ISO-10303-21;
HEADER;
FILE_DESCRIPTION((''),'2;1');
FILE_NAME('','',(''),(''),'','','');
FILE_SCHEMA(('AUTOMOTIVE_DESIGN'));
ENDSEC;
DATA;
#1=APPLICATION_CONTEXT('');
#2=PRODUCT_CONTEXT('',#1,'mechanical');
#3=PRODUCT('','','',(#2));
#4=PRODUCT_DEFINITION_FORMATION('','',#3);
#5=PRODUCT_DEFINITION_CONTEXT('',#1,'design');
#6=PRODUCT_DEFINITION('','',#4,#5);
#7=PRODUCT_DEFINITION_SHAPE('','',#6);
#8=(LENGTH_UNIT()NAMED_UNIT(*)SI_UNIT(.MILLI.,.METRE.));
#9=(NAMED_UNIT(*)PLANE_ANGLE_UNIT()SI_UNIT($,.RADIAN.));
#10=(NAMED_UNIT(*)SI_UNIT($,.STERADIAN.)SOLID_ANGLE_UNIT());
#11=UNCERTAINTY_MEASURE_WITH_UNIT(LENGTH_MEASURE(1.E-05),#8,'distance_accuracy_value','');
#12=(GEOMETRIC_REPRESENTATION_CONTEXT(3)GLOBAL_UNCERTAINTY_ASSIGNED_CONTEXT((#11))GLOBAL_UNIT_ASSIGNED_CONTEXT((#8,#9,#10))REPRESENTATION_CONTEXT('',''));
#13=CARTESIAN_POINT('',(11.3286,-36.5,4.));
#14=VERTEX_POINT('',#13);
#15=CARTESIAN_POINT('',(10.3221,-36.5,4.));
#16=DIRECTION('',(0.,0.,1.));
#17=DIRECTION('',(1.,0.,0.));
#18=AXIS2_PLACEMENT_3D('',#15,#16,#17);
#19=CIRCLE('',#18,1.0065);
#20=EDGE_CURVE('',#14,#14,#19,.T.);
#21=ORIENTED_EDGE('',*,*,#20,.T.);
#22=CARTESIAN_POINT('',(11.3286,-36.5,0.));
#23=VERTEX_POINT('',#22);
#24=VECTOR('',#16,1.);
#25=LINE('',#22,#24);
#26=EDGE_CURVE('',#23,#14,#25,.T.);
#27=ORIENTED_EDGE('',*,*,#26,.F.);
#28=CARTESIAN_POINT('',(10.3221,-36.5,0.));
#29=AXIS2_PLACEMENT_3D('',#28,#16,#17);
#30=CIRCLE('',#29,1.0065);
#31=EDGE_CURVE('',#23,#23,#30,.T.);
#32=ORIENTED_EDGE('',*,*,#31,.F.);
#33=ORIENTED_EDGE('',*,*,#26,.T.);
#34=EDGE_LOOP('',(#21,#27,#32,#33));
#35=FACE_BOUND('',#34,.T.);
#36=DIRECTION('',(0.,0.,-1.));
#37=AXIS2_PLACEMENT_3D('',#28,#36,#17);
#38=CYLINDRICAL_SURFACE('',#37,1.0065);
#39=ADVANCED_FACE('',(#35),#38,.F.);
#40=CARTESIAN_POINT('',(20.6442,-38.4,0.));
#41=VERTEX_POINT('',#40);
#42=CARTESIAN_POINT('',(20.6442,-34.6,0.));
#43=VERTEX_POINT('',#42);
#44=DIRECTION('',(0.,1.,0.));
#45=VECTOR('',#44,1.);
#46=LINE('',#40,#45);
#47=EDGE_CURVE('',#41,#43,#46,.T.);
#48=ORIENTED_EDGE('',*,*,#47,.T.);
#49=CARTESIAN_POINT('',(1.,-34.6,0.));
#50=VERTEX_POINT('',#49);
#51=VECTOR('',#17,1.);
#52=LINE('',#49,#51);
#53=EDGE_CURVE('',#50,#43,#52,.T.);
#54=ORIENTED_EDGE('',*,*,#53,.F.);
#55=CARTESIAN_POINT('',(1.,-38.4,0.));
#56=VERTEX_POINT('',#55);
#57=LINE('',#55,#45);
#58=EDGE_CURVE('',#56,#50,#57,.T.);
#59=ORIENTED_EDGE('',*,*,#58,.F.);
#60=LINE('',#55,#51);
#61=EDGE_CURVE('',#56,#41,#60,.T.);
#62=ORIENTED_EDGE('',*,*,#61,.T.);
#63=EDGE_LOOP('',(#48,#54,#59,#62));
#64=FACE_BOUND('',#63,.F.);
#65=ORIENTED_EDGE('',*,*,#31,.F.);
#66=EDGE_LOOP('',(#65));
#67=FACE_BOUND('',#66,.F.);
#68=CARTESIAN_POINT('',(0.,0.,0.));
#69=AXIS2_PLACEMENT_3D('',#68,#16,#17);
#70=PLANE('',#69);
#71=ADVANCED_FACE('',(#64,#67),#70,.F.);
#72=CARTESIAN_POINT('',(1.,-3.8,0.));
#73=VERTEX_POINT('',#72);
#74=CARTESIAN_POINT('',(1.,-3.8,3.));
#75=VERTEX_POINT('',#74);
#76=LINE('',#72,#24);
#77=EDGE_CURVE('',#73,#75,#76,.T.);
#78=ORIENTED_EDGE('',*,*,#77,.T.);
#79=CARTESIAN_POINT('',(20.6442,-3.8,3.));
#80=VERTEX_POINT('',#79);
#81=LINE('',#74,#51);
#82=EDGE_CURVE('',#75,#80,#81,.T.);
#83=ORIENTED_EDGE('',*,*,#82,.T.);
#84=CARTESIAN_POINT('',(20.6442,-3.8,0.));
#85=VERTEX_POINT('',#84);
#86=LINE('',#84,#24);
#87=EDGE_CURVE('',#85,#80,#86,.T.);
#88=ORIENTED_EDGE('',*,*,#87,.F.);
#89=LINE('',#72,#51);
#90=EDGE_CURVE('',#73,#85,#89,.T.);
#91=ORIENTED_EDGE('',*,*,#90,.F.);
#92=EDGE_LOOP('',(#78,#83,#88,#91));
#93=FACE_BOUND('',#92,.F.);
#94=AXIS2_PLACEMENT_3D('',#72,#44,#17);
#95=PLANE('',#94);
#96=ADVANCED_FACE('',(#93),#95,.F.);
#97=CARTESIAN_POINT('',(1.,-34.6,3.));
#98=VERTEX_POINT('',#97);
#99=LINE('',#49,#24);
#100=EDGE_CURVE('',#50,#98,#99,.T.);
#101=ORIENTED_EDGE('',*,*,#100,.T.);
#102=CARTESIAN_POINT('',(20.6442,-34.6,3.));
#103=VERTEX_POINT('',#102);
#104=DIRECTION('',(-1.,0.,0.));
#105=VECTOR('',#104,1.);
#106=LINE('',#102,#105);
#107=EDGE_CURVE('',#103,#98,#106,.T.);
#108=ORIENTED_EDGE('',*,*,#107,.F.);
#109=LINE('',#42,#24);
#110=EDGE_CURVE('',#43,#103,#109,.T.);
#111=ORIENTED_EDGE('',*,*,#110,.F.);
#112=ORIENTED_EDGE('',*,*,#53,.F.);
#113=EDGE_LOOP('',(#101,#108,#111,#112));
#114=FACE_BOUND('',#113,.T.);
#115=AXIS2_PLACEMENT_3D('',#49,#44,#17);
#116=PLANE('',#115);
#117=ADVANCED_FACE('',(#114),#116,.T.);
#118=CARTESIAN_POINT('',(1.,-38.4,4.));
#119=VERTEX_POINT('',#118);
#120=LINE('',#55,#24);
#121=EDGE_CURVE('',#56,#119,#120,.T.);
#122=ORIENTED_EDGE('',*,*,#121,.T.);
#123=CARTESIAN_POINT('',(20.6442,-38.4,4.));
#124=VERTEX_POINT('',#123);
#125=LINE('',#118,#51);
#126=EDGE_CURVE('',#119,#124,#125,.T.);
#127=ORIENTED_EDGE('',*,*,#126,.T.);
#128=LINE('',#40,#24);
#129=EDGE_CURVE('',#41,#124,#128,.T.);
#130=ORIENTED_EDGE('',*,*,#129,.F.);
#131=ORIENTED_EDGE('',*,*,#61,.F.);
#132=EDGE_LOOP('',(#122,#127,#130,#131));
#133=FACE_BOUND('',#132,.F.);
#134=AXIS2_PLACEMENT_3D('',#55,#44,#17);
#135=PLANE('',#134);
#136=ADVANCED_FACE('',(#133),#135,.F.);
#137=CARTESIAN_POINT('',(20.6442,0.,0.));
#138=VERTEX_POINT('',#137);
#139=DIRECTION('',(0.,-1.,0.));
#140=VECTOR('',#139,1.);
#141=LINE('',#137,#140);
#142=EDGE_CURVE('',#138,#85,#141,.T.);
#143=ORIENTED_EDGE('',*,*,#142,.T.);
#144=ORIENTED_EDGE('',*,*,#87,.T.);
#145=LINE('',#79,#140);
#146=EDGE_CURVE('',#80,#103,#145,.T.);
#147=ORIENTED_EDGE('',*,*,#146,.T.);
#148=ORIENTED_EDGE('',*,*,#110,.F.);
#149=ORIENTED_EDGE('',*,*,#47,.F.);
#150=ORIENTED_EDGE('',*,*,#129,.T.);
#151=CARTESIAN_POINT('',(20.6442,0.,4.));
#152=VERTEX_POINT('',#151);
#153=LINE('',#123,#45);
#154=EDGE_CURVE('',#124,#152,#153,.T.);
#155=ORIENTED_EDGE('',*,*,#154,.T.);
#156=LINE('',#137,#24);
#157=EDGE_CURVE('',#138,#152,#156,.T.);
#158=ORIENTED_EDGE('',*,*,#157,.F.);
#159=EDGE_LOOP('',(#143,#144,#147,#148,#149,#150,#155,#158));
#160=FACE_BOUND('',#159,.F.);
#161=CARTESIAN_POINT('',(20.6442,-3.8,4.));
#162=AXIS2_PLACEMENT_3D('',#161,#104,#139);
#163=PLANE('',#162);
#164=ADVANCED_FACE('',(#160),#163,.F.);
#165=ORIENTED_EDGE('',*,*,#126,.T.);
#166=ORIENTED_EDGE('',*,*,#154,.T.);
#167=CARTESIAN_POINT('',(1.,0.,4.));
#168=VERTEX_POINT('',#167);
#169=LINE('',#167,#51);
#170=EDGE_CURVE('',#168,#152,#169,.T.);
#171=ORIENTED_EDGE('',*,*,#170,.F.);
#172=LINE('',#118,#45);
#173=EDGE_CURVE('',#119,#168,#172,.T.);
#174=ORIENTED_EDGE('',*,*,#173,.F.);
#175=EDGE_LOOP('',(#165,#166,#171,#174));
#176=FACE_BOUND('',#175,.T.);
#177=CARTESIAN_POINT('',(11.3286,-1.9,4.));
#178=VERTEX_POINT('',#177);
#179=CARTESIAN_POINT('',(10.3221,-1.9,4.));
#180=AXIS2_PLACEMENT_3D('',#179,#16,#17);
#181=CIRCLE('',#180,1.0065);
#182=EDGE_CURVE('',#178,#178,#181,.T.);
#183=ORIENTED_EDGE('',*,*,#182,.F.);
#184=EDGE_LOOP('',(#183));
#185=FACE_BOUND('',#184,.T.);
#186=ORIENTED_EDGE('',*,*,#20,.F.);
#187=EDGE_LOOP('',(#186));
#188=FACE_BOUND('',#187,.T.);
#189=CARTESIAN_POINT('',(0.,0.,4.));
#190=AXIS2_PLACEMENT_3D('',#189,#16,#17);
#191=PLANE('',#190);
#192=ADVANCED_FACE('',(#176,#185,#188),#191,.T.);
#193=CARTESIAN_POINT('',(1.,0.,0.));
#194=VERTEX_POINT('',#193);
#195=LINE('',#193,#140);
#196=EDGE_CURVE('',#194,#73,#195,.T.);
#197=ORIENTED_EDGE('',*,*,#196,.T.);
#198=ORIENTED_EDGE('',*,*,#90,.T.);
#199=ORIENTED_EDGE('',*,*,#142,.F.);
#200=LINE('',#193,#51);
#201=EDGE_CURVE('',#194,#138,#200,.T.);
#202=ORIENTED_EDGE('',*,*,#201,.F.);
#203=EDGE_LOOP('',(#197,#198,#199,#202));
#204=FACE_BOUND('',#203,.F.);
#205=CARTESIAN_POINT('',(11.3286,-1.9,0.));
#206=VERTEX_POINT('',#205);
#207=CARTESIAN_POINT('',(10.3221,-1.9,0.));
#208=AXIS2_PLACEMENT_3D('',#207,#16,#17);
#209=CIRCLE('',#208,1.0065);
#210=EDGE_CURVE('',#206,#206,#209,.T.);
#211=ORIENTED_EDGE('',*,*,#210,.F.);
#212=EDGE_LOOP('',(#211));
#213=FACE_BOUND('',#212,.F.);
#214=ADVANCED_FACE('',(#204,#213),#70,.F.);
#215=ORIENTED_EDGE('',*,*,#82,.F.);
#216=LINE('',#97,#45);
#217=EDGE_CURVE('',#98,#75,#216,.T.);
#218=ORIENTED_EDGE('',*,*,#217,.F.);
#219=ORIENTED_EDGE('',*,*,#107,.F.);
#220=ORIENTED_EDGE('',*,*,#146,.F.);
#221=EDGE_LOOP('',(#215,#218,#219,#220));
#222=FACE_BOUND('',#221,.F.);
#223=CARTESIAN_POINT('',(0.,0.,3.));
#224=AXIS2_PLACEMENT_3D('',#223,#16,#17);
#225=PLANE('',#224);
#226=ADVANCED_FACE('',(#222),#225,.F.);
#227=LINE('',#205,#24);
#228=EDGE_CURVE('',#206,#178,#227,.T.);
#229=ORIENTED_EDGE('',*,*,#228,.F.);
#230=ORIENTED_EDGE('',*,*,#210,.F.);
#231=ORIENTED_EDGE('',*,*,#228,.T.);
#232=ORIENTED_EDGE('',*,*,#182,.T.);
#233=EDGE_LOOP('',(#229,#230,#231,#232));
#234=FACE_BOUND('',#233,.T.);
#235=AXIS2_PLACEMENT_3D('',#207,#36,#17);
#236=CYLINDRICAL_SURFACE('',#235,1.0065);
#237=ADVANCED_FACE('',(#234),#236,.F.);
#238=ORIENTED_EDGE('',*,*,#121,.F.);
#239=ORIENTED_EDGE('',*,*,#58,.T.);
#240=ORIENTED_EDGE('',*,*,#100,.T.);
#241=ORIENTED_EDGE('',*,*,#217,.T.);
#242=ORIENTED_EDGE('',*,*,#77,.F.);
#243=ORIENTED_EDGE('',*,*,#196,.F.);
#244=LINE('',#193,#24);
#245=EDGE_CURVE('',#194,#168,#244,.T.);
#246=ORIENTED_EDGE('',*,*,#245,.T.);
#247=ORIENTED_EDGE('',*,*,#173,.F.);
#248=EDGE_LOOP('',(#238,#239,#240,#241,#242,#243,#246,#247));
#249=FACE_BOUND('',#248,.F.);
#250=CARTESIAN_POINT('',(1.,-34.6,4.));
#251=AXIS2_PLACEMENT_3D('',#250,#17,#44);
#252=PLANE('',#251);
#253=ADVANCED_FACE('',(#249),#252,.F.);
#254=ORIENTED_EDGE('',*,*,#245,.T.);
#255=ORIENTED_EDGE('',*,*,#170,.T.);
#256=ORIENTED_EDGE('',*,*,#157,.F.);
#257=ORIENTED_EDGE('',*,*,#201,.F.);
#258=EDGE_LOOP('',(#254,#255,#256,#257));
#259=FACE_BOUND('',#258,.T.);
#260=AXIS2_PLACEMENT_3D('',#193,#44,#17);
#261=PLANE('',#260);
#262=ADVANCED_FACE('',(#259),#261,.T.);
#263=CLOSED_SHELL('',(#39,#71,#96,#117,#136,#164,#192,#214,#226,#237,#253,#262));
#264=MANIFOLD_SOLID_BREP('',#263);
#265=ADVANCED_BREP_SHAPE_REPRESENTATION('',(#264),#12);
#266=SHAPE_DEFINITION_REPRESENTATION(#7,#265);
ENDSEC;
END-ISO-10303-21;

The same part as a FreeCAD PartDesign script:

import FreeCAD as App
import Part
import Sketcher
from FreeCAD import Vector
Q = App.Units.Quantity


def add_polygon(sketch, points):
    """Adds a closed chain of lines whose ends are joined by coincident constraints."""
    first, n = sketch.GeometryCount, len(points)
    for a, b in zip(points, points[1:] + points[:1]):
        sketch.addGeometry(Part.LineSegment(App.Vector(*a, 0), App.Vector(*b, 0)), False)
    for i in range(n):
        sketch.addConstraint(Sketcher.Constraint("Coincident", first + i, 2, first + (i + 1) % n, 1))

doc = App.newDocument("Part")
body = doc.addObject("PartDesign::Body", "Body")
body.AllowCompound = True

sketch1 = body.newObject("Sketcher::SketchObject", "Sketch")
sketch1.AttachmentSupport = (doc.getObject("XY_Plane"), [""])
sketch1.MapMode = "FlatFace"
add_polygon(sketch1, [(1, -34.6), (1, -38.4), (20.6, -38.4), (20.6, -34.6)])
sketch1.addGeometry(Part.Circle(Vector(10.3, -36.5, 0), Vector(0, 0, 1), 1), False)
add_polygon(sketch1, [(20.6, 0), (1, 0), (1, -3.8), (20.6, -3.8)])
sketch1.addGeometry(Part.Circle(Vector(10.3, -1.9, 0), Vector(0, 0, 1), 1), False)
sketch1.addConstraint(Sketcher.Constraint("Vertical", 0))
sketch1.addConstraint(Sketcher.Constraint("Horizontal", 1))
sketch1.addConstraint(Sketcher.Constraint("Vertical", 2))
sketch1.addConstraint(Sketcher.Constraint("Horizontal", 3))
sketch1.addConstraint(Sketcher.Constraint("Horizontal", 5))
sketch1.addConstraint(Sketcher.Constraint("Vertical", 6))
sketch1.addConstraint(Sketcher.Constraint("Horizontal", 7))
sketch1.addConstraint(Sketcher.Constraint("Vertical", 8))
sketch1.addConstraint(Sketcher.Constraint("Equal", 4, 9))
sketch1.addConstraint(Sketcher.Constraint("PointOnObject", 5, 2, -1))
sketch1.addConstraint(Sketcher.Constraint("Vertical", 4, 3, 9, 3))
sketch1.addConstraint(Sketcher.Constraint("Vertical", 3, 2, 5, 2))
sketch1.addConstraint(Sketcher.Constraint("Vertical", 2, 2, 7, 2))
sketch1.addConstraint(Sketcher.Constraint("Equal", 2, 6))
sketch1.addConstraint(Sketcher.Constraint("Diameter", 4, Q("2.013 mm")))
sketch1.addConstraint(Sketcher.Constraint("DistanceY", 0, 2, 0, 1, Q("3.8 mm")))
sketch1.addConstraint(Sketcher.Constraint("DistanceX", -1, 1, 0, 2, Q("1 mm")))
sketch1.addConstraint(Sketcher.Constraint("DistanceY", 4, 3, -1, 1, Q("36.5 mm")))
sketch1.addConstraint(Sketcher.Constraint("DistanceY", 9, 3, -1, 1, Q("1.9 mm")))
sketch1.addConstraint(Sketcher.Constraint("DistanceY", 0, 2, -1, 1, Q("38.4 mm")))
sketch1.addConstraint(Sketcher.Constraint("DistanceX", 1, 1, 1, 2, Q("19.6442 mm")))
sketch1.addConstraint(Sketcher.Constraint("DistanceX", -1, 1, 4, 3, Q("10.322 mm")))
pad1 = body.newObject("PartDesign::Pad", "Pad")
pad1.Profile = sketch1
pad1.Length = 4

sketch2 = body.newObject("Sketcher::SketchObject", "Sketch001")
sketch2.AttachmentSupport = (doc.getObject("XY_Plane"), [""])
sketch2.MapMode = "FlatFace"
sketch2.AttachmentOffset = App.Placement(Vector(0, 0, 4), App.Rotation())
add_polygon(sketch2, [(1, -35), (21, -35), (21, -4), (1, -4)])
sketch2.addConstraint(Sketcher.Constraint("Horizontal", 0))
sketch2.addConstraint(Sketcher.Constraint("Vertical", 1))
sketch2.addConstraint(Sketcher.Constraint("Horizontal", 2))
sketch2.addConstraint(Sketcher.Constraint("Vertical", 3))
sketch2.addConstraint(Sketcher.Constraint("DistanceY", 1, 1, 1, 2, Q("30.8 mm")))
sketch2.addConstraint(Sketcher.Constraint("DistanceX", -1, 1, 2, 2, Q("1 mm")))
sketch2.addConstraint(Sketcher.Constraint("DistanceY", 0, 2, -1, 1, Q("34.6 mm")))
sketch2.addConstraint(Sketcher.Constraint("DistanceX", 0, 1, 0, 2, Q("19.6442 mm")))
pad2 = body.newObject("PartDesign::Pad", "Pad001")
pad2.Profile = sketch2
pad2.Length = 1
pad2.Reversed = True

doc.recompute()
